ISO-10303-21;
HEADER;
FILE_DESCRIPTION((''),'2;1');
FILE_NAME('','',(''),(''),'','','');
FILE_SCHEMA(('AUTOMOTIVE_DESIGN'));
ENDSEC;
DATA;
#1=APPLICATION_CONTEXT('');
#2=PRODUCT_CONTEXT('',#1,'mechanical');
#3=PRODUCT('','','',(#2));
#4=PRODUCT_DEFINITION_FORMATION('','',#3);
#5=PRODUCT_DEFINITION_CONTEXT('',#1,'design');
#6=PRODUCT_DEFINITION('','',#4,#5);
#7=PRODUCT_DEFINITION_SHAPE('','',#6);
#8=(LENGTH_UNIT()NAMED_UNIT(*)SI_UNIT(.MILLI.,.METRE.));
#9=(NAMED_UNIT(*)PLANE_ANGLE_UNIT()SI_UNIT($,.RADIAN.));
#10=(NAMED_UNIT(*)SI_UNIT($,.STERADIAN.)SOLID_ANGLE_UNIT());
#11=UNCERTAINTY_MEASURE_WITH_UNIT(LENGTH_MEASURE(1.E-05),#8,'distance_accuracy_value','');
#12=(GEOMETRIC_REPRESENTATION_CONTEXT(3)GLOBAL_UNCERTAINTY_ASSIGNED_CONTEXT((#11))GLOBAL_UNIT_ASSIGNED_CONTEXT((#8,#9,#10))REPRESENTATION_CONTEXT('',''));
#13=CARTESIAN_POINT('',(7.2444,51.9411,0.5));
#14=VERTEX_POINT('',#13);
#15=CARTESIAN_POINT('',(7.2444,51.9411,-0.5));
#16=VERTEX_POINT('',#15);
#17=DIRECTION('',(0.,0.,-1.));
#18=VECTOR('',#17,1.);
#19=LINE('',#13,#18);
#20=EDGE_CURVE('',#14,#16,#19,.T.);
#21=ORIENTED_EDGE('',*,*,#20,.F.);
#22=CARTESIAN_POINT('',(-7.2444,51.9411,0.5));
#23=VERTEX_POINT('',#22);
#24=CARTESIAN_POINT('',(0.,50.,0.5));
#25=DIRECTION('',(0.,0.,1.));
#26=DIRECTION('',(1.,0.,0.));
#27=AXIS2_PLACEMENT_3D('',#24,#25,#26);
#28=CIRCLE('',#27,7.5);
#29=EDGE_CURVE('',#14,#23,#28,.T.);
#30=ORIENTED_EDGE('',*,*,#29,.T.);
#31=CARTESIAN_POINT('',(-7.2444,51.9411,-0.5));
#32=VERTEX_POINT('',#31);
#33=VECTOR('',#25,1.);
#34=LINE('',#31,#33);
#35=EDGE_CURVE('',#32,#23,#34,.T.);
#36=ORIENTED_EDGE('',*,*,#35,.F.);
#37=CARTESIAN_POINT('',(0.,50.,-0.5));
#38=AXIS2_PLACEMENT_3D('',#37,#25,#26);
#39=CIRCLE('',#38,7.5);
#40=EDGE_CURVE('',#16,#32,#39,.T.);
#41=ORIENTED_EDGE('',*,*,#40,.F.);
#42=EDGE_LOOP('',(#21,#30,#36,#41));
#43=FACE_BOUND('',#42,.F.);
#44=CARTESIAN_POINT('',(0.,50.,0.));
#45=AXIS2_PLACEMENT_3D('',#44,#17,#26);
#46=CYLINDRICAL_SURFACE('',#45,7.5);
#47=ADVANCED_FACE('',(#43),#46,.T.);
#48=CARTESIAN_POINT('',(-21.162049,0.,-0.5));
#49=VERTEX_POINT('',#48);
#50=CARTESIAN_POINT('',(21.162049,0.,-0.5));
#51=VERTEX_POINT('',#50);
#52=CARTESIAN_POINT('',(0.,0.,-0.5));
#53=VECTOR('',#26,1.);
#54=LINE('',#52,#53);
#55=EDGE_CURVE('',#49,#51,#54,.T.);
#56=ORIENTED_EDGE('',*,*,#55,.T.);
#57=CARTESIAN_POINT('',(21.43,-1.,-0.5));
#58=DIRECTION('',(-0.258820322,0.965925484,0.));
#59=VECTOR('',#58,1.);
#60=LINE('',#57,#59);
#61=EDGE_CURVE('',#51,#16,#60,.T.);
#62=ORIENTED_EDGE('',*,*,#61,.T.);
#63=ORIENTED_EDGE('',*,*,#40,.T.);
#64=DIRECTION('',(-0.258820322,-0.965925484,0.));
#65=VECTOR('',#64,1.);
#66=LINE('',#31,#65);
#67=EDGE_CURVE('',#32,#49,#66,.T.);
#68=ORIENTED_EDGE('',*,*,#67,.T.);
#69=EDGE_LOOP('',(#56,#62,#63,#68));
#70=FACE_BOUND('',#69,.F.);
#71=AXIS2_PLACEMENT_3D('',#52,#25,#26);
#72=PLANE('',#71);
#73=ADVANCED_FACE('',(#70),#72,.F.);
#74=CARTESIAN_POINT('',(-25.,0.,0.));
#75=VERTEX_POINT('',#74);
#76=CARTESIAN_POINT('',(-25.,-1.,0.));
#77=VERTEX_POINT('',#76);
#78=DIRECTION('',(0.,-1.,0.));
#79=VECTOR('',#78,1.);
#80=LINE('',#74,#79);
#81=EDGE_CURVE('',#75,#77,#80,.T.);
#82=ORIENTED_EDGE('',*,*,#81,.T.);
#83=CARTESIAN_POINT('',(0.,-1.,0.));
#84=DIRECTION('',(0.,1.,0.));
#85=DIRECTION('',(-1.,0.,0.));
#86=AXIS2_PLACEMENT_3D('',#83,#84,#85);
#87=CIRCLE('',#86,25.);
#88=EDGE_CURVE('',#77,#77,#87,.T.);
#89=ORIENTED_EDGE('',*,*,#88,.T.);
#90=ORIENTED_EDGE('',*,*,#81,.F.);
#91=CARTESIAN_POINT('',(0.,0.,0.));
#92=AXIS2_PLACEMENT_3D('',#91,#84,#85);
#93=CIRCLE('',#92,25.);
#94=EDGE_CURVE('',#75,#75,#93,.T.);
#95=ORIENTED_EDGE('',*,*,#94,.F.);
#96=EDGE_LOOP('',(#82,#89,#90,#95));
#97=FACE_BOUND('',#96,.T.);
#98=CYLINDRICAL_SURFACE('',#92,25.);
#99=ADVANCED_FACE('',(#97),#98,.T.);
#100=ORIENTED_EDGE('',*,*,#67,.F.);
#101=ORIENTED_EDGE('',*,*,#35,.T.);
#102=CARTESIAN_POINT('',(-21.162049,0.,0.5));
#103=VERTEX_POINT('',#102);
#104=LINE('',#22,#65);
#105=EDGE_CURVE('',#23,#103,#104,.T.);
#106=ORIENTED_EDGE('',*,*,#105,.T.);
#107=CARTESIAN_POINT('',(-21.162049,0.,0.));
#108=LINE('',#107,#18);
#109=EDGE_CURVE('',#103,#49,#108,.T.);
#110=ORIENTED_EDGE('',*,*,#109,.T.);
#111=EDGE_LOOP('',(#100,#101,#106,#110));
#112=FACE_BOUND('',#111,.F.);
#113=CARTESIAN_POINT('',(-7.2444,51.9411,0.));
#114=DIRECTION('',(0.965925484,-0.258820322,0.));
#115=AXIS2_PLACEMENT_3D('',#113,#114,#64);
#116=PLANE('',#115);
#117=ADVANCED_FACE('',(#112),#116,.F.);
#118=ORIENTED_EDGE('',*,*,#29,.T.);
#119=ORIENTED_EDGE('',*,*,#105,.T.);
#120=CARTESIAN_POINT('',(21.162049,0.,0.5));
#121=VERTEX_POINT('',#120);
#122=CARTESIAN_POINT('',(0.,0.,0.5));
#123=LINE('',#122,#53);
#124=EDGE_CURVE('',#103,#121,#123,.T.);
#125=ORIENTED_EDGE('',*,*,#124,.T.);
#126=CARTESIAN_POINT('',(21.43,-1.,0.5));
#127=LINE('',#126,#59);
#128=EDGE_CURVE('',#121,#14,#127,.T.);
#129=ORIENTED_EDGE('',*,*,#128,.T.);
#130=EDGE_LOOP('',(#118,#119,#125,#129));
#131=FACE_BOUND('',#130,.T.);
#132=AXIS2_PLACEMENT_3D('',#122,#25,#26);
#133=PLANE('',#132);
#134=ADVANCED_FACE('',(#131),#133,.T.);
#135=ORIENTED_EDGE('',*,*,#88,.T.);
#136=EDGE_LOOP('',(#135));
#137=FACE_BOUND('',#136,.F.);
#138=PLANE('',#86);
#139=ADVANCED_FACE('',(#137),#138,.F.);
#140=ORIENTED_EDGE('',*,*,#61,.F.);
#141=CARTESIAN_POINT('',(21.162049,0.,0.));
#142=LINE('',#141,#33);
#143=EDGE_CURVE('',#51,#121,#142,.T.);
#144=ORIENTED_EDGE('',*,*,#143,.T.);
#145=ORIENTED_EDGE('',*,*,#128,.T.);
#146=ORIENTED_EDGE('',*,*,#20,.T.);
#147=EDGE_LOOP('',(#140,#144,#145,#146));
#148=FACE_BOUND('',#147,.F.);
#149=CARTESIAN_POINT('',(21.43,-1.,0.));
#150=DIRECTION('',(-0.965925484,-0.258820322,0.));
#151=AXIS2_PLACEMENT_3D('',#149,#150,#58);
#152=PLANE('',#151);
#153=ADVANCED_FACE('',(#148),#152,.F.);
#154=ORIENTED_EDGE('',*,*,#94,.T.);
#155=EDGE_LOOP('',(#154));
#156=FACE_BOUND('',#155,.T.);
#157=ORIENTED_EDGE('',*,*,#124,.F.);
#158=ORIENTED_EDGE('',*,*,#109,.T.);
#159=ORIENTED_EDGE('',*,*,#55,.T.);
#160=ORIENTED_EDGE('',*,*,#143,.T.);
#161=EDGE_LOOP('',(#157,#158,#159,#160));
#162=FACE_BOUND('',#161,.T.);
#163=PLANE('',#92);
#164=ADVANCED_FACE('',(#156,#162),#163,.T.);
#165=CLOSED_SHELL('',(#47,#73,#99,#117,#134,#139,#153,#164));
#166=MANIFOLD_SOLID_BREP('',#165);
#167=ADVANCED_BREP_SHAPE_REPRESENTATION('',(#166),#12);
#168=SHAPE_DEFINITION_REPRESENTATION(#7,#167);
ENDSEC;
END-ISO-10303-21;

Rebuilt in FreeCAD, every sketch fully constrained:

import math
import FreeCAD as App
import Part
import Sketcher

V = App.Vector
Q = App.Units.Quantity

doc = App.newDocument("Part")
body = doc.addObject("PartDesign::Body", "Body")

# Sketch on XZ plane
sketch1 = body.newObject("Sketcher::SketchObject", "Sketch")
sketch1.AttachmentSupport = (doc.getObject("XZ_Plane"), [""])
sketch1.MapMode = "FlatFace"
sketch1.addGeometry(Part.Circle(V(0, 0, 0), V(0, 0, 1), 25), False)
sketch1.addConstraint([
    Sketcher.Constraint("Coincident", 0, 3, -1, 1),
    Sketcher.Constraint("Diameter", 0, Q("50 mm")),
])
pad1 = body.newObject("PartDesign::Pad", "Pad")
pad1.Profile = sketch1
pad1.Length = 1

# Sketch on XY plane
sketch2 = body.newObject("Sketcher::SketchObject", "Sketch001")
sketch2.AttachmentSupport = (doc.getObject("XY_Plane"), [""])
sketch2.MapMode = "FlatFace"
sketch2.addGeometry([
    Part.ArcOfCircle(Part.Circle(V(0, 50, 0), V(0, 0, 1), 7.5), math.radians(14.99977), math.radians(165.00023)),
    Part.LineSegment(V(-7.2444, 51.9411, 0), V(-21.43, -1, 0)),
    Part.LineSegment(V(-21.43, -1, 0), V(21.43, -1, 0)),
    Part.LineSegment(V(21.43, -1, 0), V(7.2444, 51.9411, 0)),
], False)
sketch2.addConstraint([
    Sketcher.Constraint("Tangent", 0, 2, 1, 1),
    Sketcher.Constraint("Coincident", 1, 2, 2, 1),
    Sketcher.Constraint("Coincident", 2, 2, 3, 1),
    Sketcher.Constraint("Tangent", 3, 2, 0, 1),
    Sketcher.Constraint("Horizontal", 2),
    Sketcher.Constraint("Symmetric", 0, 2, 3, 2, -2),
    Sketcher.Constraint("Radius", 0, Q("7.5 mm")),
    Sketcher.Constraint("DistanceY", -1, 1, 0, 3, Q("50 mm")),
    Sketcher.Constraint("Angle", 1, Q("-105 deg")),
    Sketcher.Constraint("DistanceY", 1, 2, -1, 1, Q("1 mm")),
])
pad2 = body.newObject("PartDesign::Pad", "Pad001")
pad2.Profile = sketch2
pad2.Length = 1
pad2.Midplane = True

doc.recompute()
